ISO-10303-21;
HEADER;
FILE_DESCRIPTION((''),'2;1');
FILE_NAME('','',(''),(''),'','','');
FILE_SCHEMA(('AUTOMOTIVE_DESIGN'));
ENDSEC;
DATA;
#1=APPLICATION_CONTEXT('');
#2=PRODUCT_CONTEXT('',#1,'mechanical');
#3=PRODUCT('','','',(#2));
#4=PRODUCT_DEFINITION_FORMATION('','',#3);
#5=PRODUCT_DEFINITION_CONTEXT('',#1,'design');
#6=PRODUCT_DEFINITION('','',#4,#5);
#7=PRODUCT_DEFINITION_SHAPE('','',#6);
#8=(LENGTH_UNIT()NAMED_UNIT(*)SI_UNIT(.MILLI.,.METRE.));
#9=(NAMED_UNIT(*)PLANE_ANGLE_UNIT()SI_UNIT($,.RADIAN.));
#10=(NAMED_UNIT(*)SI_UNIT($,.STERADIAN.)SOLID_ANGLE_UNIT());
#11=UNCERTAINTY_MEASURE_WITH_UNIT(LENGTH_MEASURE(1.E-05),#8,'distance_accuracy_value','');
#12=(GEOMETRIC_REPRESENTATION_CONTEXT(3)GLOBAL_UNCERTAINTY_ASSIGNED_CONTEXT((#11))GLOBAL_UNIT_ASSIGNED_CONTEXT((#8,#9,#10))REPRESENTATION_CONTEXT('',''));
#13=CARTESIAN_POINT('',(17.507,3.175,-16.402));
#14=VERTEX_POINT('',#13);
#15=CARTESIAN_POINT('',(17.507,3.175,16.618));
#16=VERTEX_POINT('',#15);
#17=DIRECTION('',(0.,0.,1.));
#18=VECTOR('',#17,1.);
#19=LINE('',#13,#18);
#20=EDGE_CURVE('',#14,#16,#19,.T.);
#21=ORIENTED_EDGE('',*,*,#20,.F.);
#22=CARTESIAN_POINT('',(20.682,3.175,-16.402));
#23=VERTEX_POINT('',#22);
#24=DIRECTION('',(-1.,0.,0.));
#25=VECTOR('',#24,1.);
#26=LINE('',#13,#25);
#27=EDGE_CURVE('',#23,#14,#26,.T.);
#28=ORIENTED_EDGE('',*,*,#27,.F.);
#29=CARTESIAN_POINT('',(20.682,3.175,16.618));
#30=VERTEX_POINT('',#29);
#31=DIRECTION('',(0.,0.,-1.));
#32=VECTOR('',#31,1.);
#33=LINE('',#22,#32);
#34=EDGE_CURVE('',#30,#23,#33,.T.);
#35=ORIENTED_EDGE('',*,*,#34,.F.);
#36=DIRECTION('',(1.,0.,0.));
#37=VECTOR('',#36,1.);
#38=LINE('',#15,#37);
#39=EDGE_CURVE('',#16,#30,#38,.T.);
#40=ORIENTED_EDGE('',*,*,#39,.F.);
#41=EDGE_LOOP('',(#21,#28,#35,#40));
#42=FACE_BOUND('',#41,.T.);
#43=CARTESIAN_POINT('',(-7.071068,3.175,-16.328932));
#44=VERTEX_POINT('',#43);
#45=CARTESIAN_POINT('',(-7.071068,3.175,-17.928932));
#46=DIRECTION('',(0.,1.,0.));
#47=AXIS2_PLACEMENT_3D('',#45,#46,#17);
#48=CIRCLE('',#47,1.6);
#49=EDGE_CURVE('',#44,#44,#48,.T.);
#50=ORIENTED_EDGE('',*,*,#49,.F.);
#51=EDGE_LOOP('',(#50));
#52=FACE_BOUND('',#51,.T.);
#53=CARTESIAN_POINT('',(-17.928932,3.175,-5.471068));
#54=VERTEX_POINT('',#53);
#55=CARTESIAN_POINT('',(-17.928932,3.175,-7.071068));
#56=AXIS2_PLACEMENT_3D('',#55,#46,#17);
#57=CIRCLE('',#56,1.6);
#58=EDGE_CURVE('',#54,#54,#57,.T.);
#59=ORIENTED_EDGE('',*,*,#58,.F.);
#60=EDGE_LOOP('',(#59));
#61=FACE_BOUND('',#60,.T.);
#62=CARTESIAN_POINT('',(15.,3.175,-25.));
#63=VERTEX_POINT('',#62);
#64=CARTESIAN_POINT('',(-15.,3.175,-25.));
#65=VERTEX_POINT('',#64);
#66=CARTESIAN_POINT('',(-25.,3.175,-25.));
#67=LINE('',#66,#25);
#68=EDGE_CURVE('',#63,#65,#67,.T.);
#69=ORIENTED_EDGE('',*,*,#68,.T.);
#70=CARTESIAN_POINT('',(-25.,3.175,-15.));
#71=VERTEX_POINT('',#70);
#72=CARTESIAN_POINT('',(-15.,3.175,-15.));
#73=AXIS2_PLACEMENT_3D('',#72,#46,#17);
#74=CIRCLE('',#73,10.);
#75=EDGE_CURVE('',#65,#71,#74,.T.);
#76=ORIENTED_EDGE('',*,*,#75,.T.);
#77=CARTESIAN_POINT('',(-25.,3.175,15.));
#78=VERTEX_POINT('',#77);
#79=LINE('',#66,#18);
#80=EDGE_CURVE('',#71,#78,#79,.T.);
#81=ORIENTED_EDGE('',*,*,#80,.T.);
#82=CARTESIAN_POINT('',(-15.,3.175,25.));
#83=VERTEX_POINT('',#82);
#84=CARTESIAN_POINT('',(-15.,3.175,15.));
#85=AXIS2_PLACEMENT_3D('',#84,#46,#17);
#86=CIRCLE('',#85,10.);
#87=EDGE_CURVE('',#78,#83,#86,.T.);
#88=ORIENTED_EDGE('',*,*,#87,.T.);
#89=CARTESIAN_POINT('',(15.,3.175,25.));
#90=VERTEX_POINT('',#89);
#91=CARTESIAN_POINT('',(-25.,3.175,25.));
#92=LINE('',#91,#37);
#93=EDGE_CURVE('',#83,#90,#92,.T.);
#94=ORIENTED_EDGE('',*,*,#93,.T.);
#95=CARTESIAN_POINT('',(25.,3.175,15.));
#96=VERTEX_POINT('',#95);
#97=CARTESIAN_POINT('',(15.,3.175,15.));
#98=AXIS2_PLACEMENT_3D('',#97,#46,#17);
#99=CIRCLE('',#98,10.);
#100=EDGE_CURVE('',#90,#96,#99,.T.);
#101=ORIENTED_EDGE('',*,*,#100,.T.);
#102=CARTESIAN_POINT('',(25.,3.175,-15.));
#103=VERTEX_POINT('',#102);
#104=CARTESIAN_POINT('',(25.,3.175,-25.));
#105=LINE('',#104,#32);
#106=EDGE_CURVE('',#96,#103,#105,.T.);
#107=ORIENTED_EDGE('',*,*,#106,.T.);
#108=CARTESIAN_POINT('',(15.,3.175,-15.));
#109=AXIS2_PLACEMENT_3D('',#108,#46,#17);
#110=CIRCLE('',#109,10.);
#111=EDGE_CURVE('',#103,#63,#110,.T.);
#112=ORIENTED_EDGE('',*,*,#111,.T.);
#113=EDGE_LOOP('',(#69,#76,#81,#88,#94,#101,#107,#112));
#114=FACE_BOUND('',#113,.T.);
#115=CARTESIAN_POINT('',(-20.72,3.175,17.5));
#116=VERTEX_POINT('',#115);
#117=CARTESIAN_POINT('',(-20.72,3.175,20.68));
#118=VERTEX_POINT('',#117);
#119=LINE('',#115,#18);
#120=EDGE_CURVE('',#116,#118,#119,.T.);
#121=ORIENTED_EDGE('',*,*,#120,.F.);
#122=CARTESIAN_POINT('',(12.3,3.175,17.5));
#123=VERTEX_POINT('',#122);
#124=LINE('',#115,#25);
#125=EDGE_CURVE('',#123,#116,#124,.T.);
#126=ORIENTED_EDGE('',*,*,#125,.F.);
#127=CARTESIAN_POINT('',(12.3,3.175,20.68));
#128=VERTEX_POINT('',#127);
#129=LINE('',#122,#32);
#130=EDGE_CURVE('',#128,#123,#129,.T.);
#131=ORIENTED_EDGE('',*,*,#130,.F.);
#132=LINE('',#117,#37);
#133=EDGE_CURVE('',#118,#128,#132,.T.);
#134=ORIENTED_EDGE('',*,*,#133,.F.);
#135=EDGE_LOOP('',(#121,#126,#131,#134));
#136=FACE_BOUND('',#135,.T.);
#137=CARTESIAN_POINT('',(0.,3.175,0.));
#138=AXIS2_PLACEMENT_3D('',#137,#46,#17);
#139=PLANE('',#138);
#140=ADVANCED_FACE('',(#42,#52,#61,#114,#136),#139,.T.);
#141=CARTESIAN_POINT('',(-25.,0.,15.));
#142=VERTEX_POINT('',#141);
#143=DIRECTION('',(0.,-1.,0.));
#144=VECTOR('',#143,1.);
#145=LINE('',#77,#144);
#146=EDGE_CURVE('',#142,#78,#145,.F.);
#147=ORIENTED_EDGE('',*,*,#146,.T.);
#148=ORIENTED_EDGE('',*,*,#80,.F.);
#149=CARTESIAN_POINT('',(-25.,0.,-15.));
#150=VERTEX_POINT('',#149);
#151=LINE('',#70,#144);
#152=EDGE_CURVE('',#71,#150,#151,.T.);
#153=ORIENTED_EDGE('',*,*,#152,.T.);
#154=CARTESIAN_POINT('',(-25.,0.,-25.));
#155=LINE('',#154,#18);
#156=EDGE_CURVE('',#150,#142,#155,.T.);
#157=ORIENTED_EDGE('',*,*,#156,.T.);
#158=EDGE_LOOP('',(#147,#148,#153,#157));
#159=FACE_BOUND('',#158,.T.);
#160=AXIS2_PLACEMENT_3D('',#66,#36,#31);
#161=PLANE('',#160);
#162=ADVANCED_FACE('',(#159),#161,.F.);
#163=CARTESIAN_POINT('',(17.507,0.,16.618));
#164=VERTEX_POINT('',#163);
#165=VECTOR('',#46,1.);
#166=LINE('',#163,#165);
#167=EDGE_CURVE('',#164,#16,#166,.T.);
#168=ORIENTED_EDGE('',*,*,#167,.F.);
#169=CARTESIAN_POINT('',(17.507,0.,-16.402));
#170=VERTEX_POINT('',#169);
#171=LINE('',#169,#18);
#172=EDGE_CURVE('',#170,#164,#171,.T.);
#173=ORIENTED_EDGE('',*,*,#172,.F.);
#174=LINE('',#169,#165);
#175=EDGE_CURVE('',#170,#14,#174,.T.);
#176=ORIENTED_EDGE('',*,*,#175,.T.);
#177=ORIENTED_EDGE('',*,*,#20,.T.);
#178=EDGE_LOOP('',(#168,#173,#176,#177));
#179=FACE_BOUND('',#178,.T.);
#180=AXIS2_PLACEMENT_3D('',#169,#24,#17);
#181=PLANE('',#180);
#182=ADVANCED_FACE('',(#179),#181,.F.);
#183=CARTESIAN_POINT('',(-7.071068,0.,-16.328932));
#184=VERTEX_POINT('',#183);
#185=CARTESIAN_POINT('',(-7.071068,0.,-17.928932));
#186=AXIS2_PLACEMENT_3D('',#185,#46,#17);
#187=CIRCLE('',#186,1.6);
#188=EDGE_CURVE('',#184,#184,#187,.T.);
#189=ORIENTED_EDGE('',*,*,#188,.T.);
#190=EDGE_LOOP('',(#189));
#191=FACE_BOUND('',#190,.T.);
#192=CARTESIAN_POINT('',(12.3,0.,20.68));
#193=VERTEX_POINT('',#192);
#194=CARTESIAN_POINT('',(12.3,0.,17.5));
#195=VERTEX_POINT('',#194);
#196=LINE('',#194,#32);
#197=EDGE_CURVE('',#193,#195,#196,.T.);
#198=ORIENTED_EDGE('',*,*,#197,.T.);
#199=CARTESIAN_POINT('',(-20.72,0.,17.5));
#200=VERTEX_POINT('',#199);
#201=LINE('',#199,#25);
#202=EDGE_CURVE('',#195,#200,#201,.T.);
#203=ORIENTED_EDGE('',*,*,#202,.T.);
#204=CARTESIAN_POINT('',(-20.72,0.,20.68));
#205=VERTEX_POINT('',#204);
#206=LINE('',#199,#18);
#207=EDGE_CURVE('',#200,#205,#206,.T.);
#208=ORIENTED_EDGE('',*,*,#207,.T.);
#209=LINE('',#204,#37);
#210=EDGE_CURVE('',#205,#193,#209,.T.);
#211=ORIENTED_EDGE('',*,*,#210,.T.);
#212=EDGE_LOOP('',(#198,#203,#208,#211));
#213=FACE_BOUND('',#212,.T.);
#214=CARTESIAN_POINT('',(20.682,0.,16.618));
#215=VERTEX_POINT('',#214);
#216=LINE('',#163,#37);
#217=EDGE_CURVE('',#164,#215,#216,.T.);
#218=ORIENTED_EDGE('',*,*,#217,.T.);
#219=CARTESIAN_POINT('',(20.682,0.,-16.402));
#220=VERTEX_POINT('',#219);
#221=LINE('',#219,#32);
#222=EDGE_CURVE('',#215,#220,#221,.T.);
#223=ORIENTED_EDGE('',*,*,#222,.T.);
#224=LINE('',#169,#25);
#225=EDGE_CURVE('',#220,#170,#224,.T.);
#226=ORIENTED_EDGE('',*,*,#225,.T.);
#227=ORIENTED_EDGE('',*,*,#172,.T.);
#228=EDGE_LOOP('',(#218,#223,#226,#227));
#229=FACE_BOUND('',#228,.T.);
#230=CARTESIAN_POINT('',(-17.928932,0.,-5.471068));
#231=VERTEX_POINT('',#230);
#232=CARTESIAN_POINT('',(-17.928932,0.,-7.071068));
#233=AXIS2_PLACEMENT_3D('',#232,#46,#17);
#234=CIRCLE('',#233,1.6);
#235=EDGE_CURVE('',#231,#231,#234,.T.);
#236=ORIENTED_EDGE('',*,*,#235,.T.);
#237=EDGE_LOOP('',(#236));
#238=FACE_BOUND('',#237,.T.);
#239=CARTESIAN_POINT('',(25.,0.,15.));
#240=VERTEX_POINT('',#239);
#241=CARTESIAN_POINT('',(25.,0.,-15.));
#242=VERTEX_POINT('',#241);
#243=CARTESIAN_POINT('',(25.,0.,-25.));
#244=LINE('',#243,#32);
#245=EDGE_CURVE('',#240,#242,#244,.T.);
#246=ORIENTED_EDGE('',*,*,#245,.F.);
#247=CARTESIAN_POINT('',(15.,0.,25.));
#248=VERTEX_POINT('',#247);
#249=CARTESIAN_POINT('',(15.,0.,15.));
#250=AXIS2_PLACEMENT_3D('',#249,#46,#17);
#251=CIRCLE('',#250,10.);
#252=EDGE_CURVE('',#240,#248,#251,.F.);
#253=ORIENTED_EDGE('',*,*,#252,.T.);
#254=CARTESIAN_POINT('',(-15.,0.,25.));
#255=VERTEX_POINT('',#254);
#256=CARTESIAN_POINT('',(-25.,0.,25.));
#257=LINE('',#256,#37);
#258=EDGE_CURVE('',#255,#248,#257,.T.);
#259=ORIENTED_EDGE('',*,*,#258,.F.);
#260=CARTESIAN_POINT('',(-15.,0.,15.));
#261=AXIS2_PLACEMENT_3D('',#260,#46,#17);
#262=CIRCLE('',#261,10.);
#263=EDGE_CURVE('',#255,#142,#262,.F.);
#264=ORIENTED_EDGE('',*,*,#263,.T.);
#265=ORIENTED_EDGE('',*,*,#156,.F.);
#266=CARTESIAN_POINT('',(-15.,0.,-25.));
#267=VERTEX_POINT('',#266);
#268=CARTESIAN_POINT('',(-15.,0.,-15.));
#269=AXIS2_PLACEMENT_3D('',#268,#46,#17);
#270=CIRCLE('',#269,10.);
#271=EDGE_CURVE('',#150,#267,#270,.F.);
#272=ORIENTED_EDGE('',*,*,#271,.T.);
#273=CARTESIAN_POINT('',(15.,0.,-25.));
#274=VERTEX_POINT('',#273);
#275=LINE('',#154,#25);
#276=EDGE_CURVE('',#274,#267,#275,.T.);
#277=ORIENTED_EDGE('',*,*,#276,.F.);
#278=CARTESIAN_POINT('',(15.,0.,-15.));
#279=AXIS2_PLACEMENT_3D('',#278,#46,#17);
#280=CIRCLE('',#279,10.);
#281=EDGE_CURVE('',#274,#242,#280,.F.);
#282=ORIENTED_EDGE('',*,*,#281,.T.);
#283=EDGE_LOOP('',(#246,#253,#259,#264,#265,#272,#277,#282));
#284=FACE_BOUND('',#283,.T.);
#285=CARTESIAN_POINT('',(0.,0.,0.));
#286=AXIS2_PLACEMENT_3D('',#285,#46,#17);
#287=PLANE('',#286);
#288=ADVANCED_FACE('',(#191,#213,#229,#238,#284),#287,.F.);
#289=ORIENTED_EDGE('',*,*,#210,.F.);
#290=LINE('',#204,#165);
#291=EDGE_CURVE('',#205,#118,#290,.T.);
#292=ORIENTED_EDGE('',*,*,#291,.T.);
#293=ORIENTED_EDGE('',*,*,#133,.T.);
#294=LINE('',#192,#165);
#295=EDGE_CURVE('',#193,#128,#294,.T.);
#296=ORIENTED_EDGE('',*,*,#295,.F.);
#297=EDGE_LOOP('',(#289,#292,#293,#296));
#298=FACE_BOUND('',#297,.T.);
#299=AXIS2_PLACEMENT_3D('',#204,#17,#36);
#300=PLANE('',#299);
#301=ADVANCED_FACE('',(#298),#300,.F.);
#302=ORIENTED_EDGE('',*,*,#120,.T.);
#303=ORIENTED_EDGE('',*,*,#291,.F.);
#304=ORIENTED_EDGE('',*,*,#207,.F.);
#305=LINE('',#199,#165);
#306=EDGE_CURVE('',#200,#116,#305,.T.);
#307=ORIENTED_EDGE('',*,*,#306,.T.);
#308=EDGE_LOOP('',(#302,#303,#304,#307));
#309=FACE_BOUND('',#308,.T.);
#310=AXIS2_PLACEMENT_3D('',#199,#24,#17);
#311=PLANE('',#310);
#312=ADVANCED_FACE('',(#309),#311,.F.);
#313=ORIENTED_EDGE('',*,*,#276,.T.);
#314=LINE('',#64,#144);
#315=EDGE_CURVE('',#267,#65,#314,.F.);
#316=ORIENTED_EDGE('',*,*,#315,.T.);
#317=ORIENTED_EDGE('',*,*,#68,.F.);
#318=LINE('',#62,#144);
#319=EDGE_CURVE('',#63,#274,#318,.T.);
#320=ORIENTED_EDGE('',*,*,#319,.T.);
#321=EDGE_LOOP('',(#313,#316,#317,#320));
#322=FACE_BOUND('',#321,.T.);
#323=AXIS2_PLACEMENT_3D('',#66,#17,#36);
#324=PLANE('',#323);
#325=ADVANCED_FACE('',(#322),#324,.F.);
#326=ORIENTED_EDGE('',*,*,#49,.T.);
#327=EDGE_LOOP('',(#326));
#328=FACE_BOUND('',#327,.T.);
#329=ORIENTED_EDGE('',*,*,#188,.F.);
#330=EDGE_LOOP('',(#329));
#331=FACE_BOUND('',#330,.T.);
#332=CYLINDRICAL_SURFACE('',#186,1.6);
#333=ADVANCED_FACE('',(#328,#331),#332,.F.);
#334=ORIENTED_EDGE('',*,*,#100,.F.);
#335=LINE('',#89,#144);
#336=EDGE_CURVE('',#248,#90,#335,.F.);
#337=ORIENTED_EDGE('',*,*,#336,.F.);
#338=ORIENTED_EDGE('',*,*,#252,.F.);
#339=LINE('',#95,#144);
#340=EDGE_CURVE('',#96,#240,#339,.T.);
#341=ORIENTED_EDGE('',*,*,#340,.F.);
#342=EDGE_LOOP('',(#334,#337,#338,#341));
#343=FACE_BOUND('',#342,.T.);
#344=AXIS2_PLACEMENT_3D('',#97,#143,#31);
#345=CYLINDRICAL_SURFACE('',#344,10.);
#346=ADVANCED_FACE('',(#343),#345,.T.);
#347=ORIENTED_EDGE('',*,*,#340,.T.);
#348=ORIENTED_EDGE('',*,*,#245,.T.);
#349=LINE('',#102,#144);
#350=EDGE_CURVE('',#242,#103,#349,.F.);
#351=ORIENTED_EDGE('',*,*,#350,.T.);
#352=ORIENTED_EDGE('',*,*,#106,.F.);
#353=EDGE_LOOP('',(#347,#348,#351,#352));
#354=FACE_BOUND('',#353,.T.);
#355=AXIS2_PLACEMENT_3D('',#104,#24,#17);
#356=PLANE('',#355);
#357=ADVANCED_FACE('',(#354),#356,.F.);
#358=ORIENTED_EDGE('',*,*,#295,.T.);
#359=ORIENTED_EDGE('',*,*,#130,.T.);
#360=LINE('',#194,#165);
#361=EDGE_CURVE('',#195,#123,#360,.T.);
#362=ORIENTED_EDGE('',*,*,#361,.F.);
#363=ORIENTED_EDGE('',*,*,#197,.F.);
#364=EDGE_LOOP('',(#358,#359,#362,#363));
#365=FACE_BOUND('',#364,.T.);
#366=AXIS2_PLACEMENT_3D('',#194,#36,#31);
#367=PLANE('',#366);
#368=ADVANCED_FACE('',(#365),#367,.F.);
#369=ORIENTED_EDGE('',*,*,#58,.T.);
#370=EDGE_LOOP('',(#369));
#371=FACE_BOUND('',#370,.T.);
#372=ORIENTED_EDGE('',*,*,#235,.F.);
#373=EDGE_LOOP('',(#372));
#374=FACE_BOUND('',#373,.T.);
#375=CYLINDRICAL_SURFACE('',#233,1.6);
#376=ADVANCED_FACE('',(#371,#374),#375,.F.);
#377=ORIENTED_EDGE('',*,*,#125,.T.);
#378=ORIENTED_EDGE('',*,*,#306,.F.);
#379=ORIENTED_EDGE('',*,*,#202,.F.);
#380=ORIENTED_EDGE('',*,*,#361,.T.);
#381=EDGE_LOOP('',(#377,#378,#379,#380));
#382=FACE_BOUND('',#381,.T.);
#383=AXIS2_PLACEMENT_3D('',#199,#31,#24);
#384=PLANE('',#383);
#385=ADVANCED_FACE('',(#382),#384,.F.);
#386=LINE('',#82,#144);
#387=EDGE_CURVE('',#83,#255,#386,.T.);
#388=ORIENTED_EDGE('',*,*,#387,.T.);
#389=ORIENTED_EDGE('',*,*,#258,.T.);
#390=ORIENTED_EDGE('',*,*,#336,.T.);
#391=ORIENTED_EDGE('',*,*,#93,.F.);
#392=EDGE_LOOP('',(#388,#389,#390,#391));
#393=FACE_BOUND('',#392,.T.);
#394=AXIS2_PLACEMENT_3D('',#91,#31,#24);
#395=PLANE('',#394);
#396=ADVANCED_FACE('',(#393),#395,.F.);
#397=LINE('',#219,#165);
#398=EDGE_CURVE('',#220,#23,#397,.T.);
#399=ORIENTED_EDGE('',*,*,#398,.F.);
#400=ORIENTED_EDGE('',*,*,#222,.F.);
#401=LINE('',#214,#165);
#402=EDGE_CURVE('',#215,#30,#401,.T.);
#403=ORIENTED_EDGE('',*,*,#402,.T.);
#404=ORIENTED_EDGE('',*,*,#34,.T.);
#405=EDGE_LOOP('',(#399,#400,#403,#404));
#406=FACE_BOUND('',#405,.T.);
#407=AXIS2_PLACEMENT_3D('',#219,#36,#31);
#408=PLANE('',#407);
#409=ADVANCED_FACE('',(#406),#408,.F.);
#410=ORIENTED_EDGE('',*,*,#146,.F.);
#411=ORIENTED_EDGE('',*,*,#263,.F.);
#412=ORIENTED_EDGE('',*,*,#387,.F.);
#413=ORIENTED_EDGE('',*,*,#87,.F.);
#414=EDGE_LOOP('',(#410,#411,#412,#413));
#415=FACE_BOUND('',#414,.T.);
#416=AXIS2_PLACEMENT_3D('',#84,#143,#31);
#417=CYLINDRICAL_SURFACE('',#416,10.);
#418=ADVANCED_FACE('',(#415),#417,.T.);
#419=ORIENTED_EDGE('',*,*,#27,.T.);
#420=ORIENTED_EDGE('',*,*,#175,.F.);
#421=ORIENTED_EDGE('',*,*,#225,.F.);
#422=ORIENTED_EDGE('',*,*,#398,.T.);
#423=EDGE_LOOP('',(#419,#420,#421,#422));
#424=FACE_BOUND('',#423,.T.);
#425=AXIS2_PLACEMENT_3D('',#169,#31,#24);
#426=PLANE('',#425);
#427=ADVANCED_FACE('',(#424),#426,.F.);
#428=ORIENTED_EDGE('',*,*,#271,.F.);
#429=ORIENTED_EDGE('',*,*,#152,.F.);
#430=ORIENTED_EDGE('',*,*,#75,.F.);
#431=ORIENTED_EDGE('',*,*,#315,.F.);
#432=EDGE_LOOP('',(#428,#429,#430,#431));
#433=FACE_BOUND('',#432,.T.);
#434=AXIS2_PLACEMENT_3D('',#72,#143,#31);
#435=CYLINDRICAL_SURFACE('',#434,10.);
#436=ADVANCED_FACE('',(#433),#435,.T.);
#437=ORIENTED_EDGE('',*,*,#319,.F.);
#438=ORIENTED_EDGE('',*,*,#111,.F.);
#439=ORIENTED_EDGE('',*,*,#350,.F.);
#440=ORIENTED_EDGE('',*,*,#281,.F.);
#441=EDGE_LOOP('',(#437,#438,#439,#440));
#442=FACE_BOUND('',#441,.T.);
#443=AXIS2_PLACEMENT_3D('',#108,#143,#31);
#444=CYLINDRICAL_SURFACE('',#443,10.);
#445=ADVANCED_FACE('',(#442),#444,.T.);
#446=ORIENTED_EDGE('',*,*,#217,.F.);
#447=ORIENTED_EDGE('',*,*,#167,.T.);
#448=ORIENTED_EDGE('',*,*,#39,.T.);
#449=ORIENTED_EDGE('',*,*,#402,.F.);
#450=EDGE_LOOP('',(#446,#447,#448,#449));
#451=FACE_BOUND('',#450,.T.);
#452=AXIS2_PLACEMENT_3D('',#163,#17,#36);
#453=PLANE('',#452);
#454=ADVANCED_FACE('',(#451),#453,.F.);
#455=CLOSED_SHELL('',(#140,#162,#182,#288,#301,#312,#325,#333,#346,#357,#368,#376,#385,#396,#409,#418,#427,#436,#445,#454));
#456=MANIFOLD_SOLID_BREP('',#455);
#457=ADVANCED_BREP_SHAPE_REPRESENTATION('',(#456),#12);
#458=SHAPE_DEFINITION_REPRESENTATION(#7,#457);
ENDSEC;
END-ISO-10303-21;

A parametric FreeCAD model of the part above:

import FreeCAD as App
import Part
import Sketcher


def edges_at(feature, points):
    """Names of the edges that pass closest to the given points."""
    edges = feature.Shape.Edges
    near = lambda p: min(range(len(edges)), key=lambda i: edges[i].distToShape(Part.Vertex(*p))[0])
    return sorted({f"Edge{near(p) + 1}" for p in points})

doc = App.newDocument("Part")
body = doc.addObject("PartDesign::Body", "Body")

sketch1 = body.newObject("Sketcher::SketchObject", "Sketch")
sketch1.AttachmentSupport = (doc.getObject("XZ_Plane"), [""])
sketch1.MapMode = "FlatFace"
sketch1.addGeometry(Part.LineSegment(App.Vector(-25, -25, 0), App.Vector(-25, 25, 0)), False)
sketch1.addGeometry(Part.LineSegment(App.Vector(-25, 25, 0), App.Vector(25, 25, 0)), False)
sketch1.addGeometry(Part.LineSegment(App.Vector(25, 25, 0), App.Vector(25, -25, 0)), False)
sketch1.addGeometry(Part.LineSegment(App.Vector(25, -25, 0), App.Vector(-25, -25, 0)), False)
sketch1.addConstraint(Sketcher.Constraint("Coincident", 0, 2, 1, 1))
sketch1.addConstraint(Sketcher.Constraint("Coincident", 1, 2, 2, 1))
sketch1.addConstraint(Sketcher.Constraint("Coincident", 2, 2, 3, 1))
sketch1.addConstraint(Sketcher.Constraint("Coincident", 3, 2, 0, 1))
sketch1.addConstraint(Sketcher.Constraint("Vertical", 0))
sketch1.addConstraint(Sketcher.Constraint("Horizontal", 1))
sketch1.addConstraint(Sketcher.Constraint("Vertical", 2))
sketch1.addConstraint(Sketcher.Constraint("Horizontal", 3))
sketch1.addConstraint(Sketcher.Constraint("Symmetric", 0, 2, 2, 2, -1, 1))
sketch1.addConstraint(Sketcher.Constraint("Equal", 3, 0))
sketch1.addConstraint(Sketcher.Constraint("DistanceX", 1, 1, 1, 2, 50.0))
pad1 = body.newObject("PartDesign::Pad", "Pad")
pad1.Profile = sketch1
pad1.Length = 3.175
pad1.Reversed = True

sketch2 = body.newObject("Sketcher::SketchObject", "Sketch001")
sketch2.AttachmentSupport = (doc.getObject("XZ_Plane"), [""])
sketch2.MapMode = "FlatFace"
sketch2.AttachmentOffset = App.Placement(App.Vector(0, 0, -3.175), App.Rotation())
sketch2.addGeometry(Part.LineSegment(App.Vector(17.5, -16.4, 0), App.Vector(17.5, 16.6, 0)), False)
sketch2.addGeometry(Part.LineSegment(App.Vector(17.5, 16.6, 0), App.Vector(20.7, 16.6, 0)), False)
sketch2.addGeometry(Part.LineSegment(App.Vector(20.7, 16.6, 0), App.Vector(20.7, -16.4, 0)), False)
sketch2.addGeometry(Part.LineSegment(App.Vector(20.7, -16.4, 0), App.Vector(17.5, -16.4, 0)), False)
sketch2.addGeometry(Part.LineSegment(App.Vector(-20.7, 17.5, 0), App.Vector(-20.7, 20.7, 0)), False)
sketch2.addGeometry(Part.LineSegment(App.Vector(-20.7, 20.7, 0), App.Vector(12.3, 20.7, 0)), False)
sketch2.addGeometry(Part.LineSegment(App.Vector(12.3, 20.7, 0), App.Vector(12.3, 17.5, 0)), False)
sketch2.addGeometry(Part.LineSegment(App.Vector(12.3, 17.5, 0), App.Vector(-20.7, 17.5, 0)), False)
sketch2.addConstraint(Sketcher.Constraint("Coincident", 0, 2, 1, 1))
sketch2.addConstraint(Sketcher.Constraint("Coincident", 1, 2, 2, 1))
sketch2.addConstraint(Sketcher.Constraint("Coincident", 2, 2, 3, 1))
sketch2.addConstraint(Sketcher.Constraint("Coincident", 3, 2, 0, 1))
sketch2.addConstraint(Sketcher.Constraint("Coincident", 4, 2, 5, 1))
sketch2.addConstraint(Sketcher.Constraint("Coincident", 5, 2, 6, 1))
sketch2.addConstraint(Sketcher.Constraint("Coincident", 6, 2, 7, 1))
sketch2.addConstraint(Sketcher.Constraint("Coincident", 7, 2, 4, 1))
sketch2.addConstraint(Sketcher.Constraint("Vertical", 0))
sketch2.addConstraint(Sketcher.Constraint("Horizontal", 1))
sketch2.addConstraint(Sketcher.Constraint("Vertical", 2))
sketch2.addConstraint(Sketcher.Constraint("Horizontal", 3))
sketch2.addConstraint(Sketcher.Constraint("Vertical", 4))
sketch2.addConstraint(Sketcher.Constraint("Horizontal", 5))
sketch2.addConstraint(Sketcher.Constraint("Vertical", 6))
sketch2.addConstraint(Sketcher.Constraint("Horizontal", 7))
sketch2.addConstraint(Sketcher.Constraint("Equal", 7, 0))
sketch2.addConstraint(Sketcher.Constraint("DistanceX", 5, 1, 5, 2, 33.02))
sketch2.addConstraint(Sketcher.Constraint("DistanceY", 4, 1, 4, 2, 3.18))
sketch2.addConstraint(Sketcher.Constraint("DistanceX", -1, 1, 5, 2, 12.3))
sketch2.addConstraint(Sketcher.Constraint("DistanceY", -1, 1, 6, 2, 17.5))
sketch2.addConstraint(Sketcher.Constraint("DistanceX", 1, 1, 1, 2, 3.175))
sketch2.addConstraint(Sketcher.Constraint("DistanceX", -1, 1, 0, 2, 17.507))
sketch2.addConstraint(Sketcher.Constraint("DistanceY", -1, 1, 0, 2, 16.618))
pocket1 = body.newObject("PartDesign::Pocket", "Pocket")
pocket1.Profile = sketch2
pocket1.Type = "ThroughAll"
pocket1.Reversed = True

sketch3 = body.newObject("Sketcher::SketchObject", "Sketch002")
sketch3.AttachmentSupport = (doc.getObject("XZ_Plane"), [""])
sketch3.MapMode = "FlatFace"
sketch3.AttachmentOffset = App.Placement(App.Vector(0, 0, -3.175), App.Rotation())
sketch3.addGeometry(Part.Circle(App.Vector(-7.1, -17.9, 0), App.Vector(0, 0, 1), 1.6), False)
sketch3.addGeometry(Part.Circle(App.Vector(-17.9, -7.1, 0), App.Vector(0, 0, 1), 1.6), False)
sketch3.addConstraint(Sketcher.Constraint("Equal", 0, 1))
sketch3.addConstraint(Sketcher.Constraint("Diameter", 0, 3.2))
sketch3.addConstraint(Sketcher.Constraint("DistanceX", 0, 3, -1, 1, 7.071068))
sketch3.addConstraint(Sketcher.Constraint("DistanceY", 0, 3, -1, 1, 17.928932))
sketch3.addConstraint(Sketcher.Constraint("DistanceX", 1, 3, -1, 1, 17.928932))
sketch3.addConstraint(Sketcher.Constraint("DistanceY", 1, 3, -1, 1, 7.071068))
pocket2 = body.newObject("PartDesign::Pocket", "Pocket001")
pocket2.Profile = sketch3
pocket2.Type = "ThroughAll"
pocket2.Reversed = True
doc.recompute()

fillet = body.newObject("PartDesign::Fillet", "Fillet")
fillet.Base = (pocket2, edges_at(pocket2, [
    (25, 1.587, 25),
    (-25, 1.587, 25),
    (-25, 1.587, -25),
    (25, 1.587, -25),
]))
fillet.Radius = 10

doc.recompute()
